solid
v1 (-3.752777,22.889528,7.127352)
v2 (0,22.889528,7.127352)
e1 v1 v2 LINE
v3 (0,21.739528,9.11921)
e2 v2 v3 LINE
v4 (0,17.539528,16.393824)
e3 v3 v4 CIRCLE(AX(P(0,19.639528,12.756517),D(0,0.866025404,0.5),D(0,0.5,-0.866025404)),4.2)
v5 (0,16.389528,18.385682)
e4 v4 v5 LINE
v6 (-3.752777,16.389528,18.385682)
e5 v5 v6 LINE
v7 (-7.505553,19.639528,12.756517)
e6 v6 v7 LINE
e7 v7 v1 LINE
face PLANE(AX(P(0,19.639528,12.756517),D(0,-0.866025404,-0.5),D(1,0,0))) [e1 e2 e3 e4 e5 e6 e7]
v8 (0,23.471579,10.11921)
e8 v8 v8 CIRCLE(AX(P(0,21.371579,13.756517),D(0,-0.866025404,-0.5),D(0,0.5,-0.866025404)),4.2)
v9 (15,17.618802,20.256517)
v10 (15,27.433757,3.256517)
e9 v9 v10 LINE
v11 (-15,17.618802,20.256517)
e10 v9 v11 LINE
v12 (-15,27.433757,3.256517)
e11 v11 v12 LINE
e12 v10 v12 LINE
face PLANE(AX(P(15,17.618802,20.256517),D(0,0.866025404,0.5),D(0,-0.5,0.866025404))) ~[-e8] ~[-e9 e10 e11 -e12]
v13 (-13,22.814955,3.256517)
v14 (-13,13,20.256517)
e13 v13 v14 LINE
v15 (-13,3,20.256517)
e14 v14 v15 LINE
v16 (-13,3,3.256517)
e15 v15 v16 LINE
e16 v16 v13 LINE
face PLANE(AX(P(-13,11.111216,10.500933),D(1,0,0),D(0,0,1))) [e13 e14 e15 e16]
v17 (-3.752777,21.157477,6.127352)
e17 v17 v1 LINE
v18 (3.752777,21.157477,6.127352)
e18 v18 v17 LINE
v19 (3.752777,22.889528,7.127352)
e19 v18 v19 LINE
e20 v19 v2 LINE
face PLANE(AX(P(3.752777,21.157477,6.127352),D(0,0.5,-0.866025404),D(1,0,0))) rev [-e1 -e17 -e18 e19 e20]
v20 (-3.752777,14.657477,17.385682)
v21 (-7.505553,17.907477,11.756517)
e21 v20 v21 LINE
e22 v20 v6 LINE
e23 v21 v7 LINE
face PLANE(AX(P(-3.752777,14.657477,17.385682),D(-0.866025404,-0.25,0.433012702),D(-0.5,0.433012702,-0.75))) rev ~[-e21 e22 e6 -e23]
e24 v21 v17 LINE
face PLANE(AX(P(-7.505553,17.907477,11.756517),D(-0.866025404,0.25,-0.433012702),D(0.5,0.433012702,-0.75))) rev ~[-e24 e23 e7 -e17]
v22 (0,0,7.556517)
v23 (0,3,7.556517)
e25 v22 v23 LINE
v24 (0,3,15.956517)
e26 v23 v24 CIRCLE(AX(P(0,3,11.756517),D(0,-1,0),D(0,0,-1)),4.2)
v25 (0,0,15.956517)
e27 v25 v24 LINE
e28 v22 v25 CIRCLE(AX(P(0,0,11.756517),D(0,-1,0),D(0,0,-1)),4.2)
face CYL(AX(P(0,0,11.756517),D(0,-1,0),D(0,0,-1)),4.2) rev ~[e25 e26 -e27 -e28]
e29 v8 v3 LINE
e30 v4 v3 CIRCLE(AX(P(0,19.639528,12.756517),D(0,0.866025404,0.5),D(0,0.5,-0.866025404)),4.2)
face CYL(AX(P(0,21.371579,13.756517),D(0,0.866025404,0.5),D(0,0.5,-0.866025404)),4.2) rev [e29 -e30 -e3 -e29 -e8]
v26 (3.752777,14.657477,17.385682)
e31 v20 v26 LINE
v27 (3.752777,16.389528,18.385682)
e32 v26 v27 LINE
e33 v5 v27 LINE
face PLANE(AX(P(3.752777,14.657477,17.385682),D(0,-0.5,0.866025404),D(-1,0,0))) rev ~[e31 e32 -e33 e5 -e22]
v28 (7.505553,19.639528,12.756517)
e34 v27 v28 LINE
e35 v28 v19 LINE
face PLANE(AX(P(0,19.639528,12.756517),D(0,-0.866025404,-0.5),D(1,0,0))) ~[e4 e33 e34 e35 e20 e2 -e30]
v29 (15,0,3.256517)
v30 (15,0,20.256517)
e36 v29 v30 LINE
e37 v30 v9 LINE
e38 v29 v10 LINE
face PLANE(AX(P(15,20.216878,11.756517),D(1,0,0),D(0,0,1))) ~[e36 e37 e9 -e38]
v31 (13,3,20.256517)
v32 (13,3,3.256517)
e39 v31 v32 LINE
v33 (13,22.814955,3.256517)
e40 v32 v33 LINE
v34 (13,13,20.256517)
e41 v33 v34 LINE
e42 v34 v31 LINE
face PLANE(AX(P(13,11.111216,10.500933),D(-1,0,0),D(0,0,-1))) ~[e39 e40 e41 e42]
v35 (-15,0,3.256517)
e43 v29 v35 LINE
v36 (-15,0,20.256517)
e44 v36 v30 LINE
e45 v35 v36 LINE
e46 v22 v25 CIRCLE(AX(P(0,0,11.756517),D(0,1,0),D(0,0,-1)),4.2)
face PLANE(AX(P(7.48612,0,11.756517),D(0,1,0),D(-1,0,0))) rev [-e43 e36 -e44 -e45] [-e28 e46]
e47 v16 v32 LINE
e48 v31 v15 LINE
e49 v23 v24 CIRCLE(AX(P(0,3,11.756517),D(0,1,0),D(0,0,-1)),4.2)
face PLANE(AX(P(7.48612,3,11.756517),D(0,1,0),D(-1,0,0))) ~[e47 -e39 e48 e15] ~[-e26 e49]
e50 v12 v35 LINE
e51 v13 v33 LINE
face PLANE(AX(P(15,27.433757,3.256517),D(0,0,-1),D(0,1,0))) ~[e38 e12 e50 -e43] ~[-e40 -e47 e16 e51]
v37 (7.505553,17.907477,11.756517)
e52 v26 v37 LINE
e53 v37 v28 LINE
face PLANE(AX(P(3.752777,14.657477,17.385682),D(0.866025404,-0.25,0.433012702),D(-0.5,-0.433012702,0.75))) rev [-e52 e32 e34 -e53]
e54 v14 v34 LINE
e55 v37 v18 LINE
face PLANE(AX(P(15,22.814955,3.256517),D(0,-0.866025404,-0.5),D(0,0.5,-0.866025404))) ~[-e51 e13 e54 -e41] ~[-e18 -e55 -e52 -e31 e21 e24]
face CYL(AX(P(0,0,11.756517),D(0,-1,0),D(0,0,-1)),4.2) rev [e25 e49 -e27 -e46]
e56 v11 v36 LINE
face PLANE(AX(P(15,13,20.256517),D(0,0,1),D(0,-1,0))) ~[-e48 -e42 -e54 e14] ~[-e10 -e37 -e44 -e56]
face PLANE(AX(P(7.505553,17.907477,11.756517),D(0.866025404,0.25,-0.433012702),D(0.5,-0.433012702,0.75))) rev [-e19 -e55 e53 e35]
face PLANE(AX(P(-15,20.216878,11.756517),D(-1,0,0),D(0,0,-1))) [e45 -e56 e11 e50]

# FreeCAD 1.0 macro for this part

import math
import FreeCAD as App
import Part
import Sketcher
from FreeCAD import Vector
Q = App.Units.Quantity

doc = App.newDocument("Part")
body = doc.addObject("PartDesign::Body", "Body")

sketch1 = body.newObject("Sketcher::SketchObject", "Sketch")
sketch1.AttachmentSupport = (doc.getObject("XZ_Plane"), [""])
sketch1.MapMode = "FlatFace"
sketch1.addGeometry(Part.LineSegment(Vector(-15, 3.256517, 0), Vector(-15, 20.256517, 0)), False)
sketch1.addGeometry(Part.LineSegment(Vector(-15, 20.256517, 0), Vector(0, 20.256517, 0)), False)
sketch1.addGeometry(Part.LineSegment(Vector(0, 20.256517, 0), Vector(0, 15.956517, 0)), False)
sketch1.addGeometry(Part.ArcOfCircle(Part.Circle(Vector(0, 11.756517, 0), Vector(0, 0, 1), 4.2), math.radians(90), math.radians(270)), False)
sketch1.addGeometry(Part.LineSegment(Vector(0, 7.556517, 0), Vector(0, 3.256517, 0)), False)
sketch1.addGeometry(Part.LineSegment(Vector(0, 3.256517, 0), Vector(-15, 3.256517, 0)), False)
sketch1.addConstraint(Sketcher.Constraint("Coincident", 0, 2, 1, 1))
sketch1.addConstraint(Sketcher.Constraint("Coincident", 1, 2, 2, 1))
sketch1.addConstraint(Sketcher.Constraint("Coincident", 2, 2, 3, 1))
sketch1.addConstraint(Sketcher.Constraint("Coincident", 3, 2, 4, 1))
sketch1.addConstraint(Sketcher.Constraint("Coincident", 4, 2, 5, 1))
sketch1.addConstraint(Sketcher.Constraint("Coincident", 5, 2, 0, 1))
sketch1.addConstraint(Sketcher.Constraint("Vertical", 0))
sketch1.addConstraint(Sketcher.Constraint("Horizontal", 1))
sketch1.addConstraint(Sketcher.Constraint("Vertical", 2))
sketch1.addConstraint(Sketcher.Constraint("Vertical", 4))
sketch1.addConstraint(Sketcher.Constraint("Horizontal", 5))
sketch1.addConstraint(Sketcher.Constraint("PointOnObject", 3, 3, -2))
sketch1.addConstraint(Sketcher.Constraint("PointOnObject", 1, 2, -2))
sketch1.addConstraint(Sketcher.Constraint("PointOnObject", 3, 2, -2))
sketch1.addConstraint(Sketcher.Constraint("Equal", 2, 4))
sketch1.addConstraint(Sketcher.Constraint("Radius", 3, 4.2))
sketch1.addConstraint(Sketcher.Constraint("DistanceX", 1, 1, 1, 2, 15.0))
sketch1.addConstraint(Sketcher.Constraint("DistanceY", 0, 1, 0, 2, 17.0))
sketch1.addConstraint(Sketcher.Constraint("DistanceY", -1, 1, 3, 3, 11.756517))
pad1 = body.newObject("PartDesign::Pad", "Pad")
pad1.Profile = sketch1
pad1.Length = 3
pad1.Reversed = True

sketch2 = body.newObject("Sketcher::SketchObject", "Sketch001")
sketch2.AttachmentSupport = (doc.getObject("YZ_Plane"), [""])
sketch2.MapMode = "FlatFace"
sketch2.AttachmentOffset = App.Placement(Vector(0, 0, -15), App.Rotation())
sketch2.addGeometry(Part.LineSegment(Vector(22.814955, 3.256517, 0), Vector(3, 3.256517, 0)), False)
sketch2.addGeometry(Part.LineSegment(Vector(3, 3.256517, 0), Vector(3, 20.256517, 0)), False)
sketch2.addGeometry(Part.LineSegment(Vector(3, 20.256517, 0), Vector(13, 20.256517, 0)), False)
sketch2.addGeometry(Part.LineSegment(Vector(13, 20.256517, 0), Vector(22.814955, 3.256517, 0)), False)
sketch2.addConstraint(Sketcher.Constraint("Coincident", 0, 2, 1, 1))
sketch2.addConstraint(Sketcher.Constraint("Coincident", 1, 2, 2, 1))
sketch2.addConstraint(Sketcher.Constraint("Coincident", 2, 2, 3, 1))
sketch2.addConstraint(Sketcher.Constraint("Coincident", 3, 2, 0, 1))
sketch2.addConstraint(Sketcher.Constraint("Horizontal", 0))
sketch2.addConstraint(Sketcher.Constraint("Vertical", 1))
sketch2.addConstraint(Sketcher.Constraint("Horizontal", 2))
sketch2.addConstraint(Sketcher.Constraint("DistanceX", 2, 1, 2, 2, 10.0))
sketch2.addConstraint(Sketcher.Constraint("DistanceY", 1, 1, 1, 2, 17.0))
sketch2.addConstraint(Sketcher.Constraint("Angle", 3, Q("-60 deg")))
sketch2.addConstraint(Sketcher.Constraint("DistanceX", -1, 1, 0, 2, 3.0))
sketch2.addConstraint(Sketcher.Constraint("DistanceY", -1, 1, 0, 2, 3.256517))
pad2 = body.newObject("PartDesign::Pad", "Pad001")
pad2.Profile = sketch2
pad2.Length = 2

sketch3 = body.newObject("Sketcher::SketchObject", "Sketch002")
sketch3.AttachmentSupport = (doc.getObject("YZ_Plane"), [""])
sketch3.MapMode = "FlatFace"
sketch3.AttachmentOffset = App.Placement(Vector(0, 0, -15), App.Rotation())
sketch3.addGeometry(Part.LineSegment(Vector(13, 20.256517, 0), Vector(17.618802, 20.256517, 0)), False)
sketch3.addGeometry(Part.LineSegment(Vector(17.618802, 20.256517, 0), Vector(27.433757, 3.256517, 0)), False)
sketch3.addGeometry(Part.LineSegment(Vector(27.433757, 3.256517, 0), Vector(22.814955, 3.256517, 0)), False)
sketch3.addGeometry(Part.LineSegment(Vector(22.814955, 3.256517, 0), Vector(13, 20.256517, 0)), False)
sketch3.addConstraint(Sketcher.Constraint("Coincident", 0, 2, 1, 1))
sketch3.addConstraint(Sketcher.Constraint("Coincident", 1, 2, 2, 1))
sketch3.addConstraint(Sketcher.Constraint("Coincident", 2, 2, 3, 1))
sketch3.addConstraint(Sketcher.Constraint("Coincident", 3, 2, 0, 1))
sketch3.addConstraint(Sketcher.Constraint("Horizontal", 0))
sketch3.addConstraint(Sketcher.Constraint("Horizontal", 2))
sketch3.addConstraint(Sketcher.Constraint("Parallel", 1, 3))
sketch3.addConstraint(Sketcher.Constraint("Angle", 1, Q("-60 deg")))
sketch3.addConstraint(Sketcher.Constraint("DistanceX", -1, 1, 3, 2, 13.0))
sketch3.addConstraint(Sketcher.Constraint("DistanceY", 1, 2, 0, 2, 17.0))
sketch3.addConstraint(Sketcher.Constraint("DistanceX", 0, 1, 0, 2, 4.618802))
sketch3.addConstraint(Sketcher.Constraint("DistanceY", -1, 1, 0, 2, 20.256517))
pad3 = body.newObject("PartDesign::Pad", "Pad002")
pad3.Profile = sketch3
pad3.Length = 15

sketch4 = body.newObject("Sketcher::SketchObject", "Sketch003")
sketch4.Placement = App.Placement(Vector(0, 21.985431, 12.693294), App.Rotation(Vector(1, 0, 0), Vector(0, 0.5, -0.866025404), Vector(0, 0.866025404, 0.5), "ZXY"))
sketch4.addGeometry(Part.ArcOfCircle(Part.Circle(Vector(0, -1.227704, 0), Vector(0, 0, 1), 4.2), math.radians(90), math.radians(270)), False)
sketch4.addGeometry(Part.LineSegment(Vector(0, -5.427704, 0), Vector(0, 2.972296, 0)), False)
sketch4.addConstraint(Sketcher.Constraint("Coincident", 0, 1, 1, 2))
sketch4.addConstraint(Sketcher.Constraint("Coincident", 1, 1, 0, 2))
sketch4.addConstraint(Sketcher.Constraint("Vertical", 1))
sketch4.addConstraint(Sketcher.Constraint("PointOnObject", 0, 3, -2))
sketch4.addConstraint(Sketcher.Constraint("PointOnObject", 0, 1, -2))
sketch4.addConstraint(Sketcher.Constraint("Radius", 0, 4.2))
sketch4.addConstraint(Sketcher.Constraint("DistanceY", 0, 3, -1, 1, 1.227704))
pocket1 = body.newObject("PartDesign::Pocket", "Pocket")
pocket1.Profile = sketch4
pocket1.Length = 5

sketch5 = body.newObject("Sketcher::SketchObject", "Sketch004")
sketch5.Placement = App.Placement(Vector(0, 18.521329, 10.693294), App.Rotation(Vector(1, 0, 0), Vector(0, -0.5, 0.866025404), Vector(0, -0.866025404, -0.5), "ZXY"))
sketch5.addGeometry(Part.LineSegment(Vector(3.752777, 7.727704, 0), Vector(-3.752777, 7.727704, 0)), False)
sketch5.addGeometry(Part.LineSegment(Vector(-3.752777, 7.727704, 0), Vector(-7.505554, 1.227704, 0)), False)
sketch5.addGeometry(Part.LineSegment(Vector(-7.505554, 1.227704, 0), Vector(-3.752777, -5.272296, 0)), False)
sketch5.addGeometry(Part.LineSegment(Vector(-3.752777, -5.272296, 0), Vector(3.752777, -5.272296, 0)), False)
sketch5.addGeometry(Part.LineSegment(Vector(3.752777, -5.272296, 0), Vector(7.505554, 1.227704, 0)), False)
sketch5.addGeometry(Part.LineSegment(Vector(7.505554, 1.227704, 0), Vector(3.752777, 7.727704, 0)), False)
sketch5.addConstraint(Sketcher.Constraint("Coincident", 0, 2, 1, 1))
sketch5.addConstraint(Sketcher.Constraint("Coincident", 1, 2, 2, 1))
sketch5.addConstraint(Sketcher.Constraint("Coincident", 2, 2, 3, 1))
sketch5.addConstraint(Sketcher.Constraint("Coincident", 3, 2, 4, 1))
sketch5.addConstraint(Sketcher.Constraint("Coincident", 4, 2, 5, 1))
sketch5.addConstraint(Sketcher.Constraint("Coincident", 5, 2, 0, 1))
sketch5.addConstraint(Sketcher.Constraint("Horizontal", 0))
sketch5.addConstraint(Sketcher.Constraint("Horizontal", 3))
sketch5.addConstraint(Sketcher.Constraint("Symmetric", 1, 2, 4, 2, -2))
sketch5.addConstraint(Sketcher.Constraint("Parallel", 1, 4))
sketch5.addConstraint(Sketcher.Constraint("Parallel", 2, 5))
sketch5.addConstraint(Sketcher.Constraint("Vertical", 0, 2, 2, 2))
sketch5.addConstraint(Sketcher.Constraint("Vertical", 3, 2, 5, 2))
sketch5.addConstraint(Sketcher.Constraint("Angle", 1, Q("-120 deg")))
sketch5.addConstraint(Sketcher.Constraint("DistanceY", 2, 2, 0, 2, 13.0))
sketch5.addConstraint(Sketcher.Constraint("DistanceX", 0, 2, 0, 1, 7.505554))
sketch5.addConstraint(Sketcher.Constraint("DistanceY", -1, 1, 0, 2, 7.727704))
pocket2 = body.newObject("PartDesign::Pocket", "Pocket001")
pocket2.Profile = sketch5
pocket2.Length = 2
doc.recompute()

mirrored = body.newObject("PartDesign::Mirrored", "Mirrored")
mirrored.Originals = [pad1, pad2, pad3, pocket1, pocket2]
mirrored.MirrorPlane = (doc.getObject("YZ_Plane"), [""])
body.Tip = mirrored

doc.recompute()
